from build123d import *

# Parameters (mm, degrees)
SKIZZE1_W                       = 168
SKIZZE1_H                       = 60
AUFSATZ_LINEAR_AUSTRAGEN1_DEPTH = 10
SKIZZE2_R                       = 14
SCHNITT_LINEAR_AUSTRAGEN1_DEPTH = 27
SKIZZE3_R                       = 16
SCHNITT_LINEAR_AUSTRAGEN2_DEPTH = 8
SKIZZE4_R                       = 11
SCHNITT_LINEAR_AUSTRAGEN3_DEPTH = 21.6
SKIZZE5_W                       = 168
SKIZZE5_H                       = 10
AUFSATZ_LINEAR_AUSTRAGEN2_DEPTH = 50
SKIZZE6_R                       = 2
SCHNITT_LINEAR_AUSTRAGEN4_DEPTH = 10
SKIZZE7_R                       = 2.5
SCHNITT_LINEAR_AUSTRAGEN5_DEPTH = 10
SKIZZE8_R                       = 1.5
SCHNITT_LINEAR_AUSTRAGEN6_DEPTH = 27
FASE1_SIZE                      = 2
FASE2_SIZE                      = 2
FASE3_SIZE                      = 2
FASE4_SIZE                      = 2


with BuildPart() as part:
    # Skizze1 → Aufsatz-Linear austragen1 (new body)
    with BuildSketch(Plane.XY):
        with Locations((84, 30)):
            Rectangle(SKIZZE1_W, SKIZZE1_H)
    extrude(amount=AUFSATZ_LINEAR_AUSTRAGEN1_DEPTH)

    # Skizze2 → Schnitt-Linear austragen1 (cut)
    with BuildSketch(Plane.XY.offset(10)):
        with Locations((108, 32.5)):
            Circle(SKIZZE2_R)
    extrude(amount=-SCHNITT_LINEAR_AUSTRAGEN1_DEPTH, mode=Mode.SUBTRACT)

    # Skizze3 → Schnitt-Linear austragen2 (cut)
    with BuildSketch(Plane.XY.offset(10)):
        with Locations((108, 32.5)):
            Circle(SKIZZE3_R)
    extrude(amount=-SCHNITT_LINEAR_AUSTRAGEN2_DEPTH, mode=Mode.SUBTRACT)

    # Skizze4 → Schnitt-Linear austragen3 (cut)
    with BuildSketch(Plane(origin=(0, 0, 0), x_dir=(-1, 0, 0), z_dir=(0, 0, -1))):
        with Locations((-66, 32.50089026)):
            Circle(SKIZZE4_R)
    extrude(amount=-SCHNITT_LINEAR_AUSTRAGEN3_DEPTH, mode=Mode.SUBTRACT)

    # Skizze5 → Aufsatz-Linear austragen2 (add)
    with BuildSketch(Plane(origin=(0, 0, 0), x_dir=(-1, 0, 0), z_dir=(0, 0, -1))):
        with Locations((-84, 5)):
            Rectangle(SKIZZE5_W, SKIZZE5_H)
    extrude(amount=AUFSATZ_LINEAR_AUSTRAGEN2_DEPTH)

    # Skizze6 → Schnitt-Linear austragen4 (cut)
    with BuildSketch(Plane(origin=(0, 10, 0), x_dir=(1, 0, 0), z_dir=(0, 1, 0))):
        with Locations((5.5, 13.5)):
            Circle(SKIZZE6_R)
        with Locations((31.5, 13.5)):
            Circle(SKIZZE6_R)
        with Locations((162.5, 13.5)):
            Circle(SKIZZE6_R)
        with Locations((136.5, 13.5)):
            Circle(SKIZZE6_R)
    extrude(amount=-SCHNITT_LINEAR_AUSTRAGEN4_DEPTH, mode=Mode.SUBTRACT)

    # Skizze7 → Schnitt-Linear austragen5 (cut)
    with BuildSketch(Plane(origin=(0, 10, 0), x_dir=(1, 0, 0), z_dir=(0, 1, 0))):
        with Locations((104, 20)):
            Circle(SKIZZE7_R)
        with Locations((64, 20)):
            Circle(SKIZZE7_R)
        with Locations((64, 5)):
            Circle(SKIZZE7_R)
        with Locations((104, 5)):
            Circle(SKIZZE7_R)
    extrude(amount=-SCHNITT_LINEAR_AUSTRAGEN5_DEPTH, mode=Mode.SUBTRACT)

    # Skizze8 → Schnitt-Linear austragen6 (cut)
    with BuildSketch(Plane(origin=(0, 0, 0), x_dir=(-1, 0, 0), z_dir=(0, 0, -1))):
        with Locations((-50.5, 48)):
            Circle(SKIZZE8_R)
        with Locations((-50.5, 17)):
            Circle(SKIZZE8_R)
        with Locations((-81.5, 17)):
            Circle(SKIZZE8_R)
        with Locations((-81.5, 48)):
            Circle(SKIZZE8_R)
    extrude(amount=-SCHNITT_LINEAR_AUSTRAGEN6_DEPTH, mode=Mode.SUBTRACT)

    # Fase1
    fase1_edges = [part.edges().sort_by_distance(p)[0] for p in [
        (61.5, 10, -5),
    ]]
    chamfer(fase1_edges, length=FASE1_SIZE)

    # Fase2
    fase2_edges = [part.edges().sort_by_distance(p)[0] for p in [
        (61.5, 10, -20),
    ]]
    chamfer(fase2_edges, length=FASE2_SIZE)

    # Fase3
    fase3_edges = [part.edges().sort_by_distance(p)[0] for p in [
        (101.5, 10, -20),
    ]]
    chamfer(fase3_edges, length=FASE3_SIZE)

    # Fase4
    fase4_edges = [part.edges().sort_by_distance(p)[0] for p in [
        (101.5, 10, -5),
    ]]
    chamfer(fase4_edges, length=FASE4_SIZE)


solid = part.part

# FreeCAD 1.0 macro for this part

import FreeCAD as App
import Part
import Sketcher
Q = App.Units.Quantity


def edges_at(feature, points):
    """Names of the edges that pass closest to the given points."""
    edges = feature.Shape.Edges
    near = lambda p: min(range(len(edges)), key=lambda i: edges[i].distToShape(Part.Vertex(*p))[0])
    return sorted({f"Edge{near(p) + 1}" for p in points})


def add_polygon(sketch, points):
    """Adds a closed chain of lines whose ends are joined by coincident constraints."""
    first, n = sketch.GeometryCount, len(points)
    for a, b in zip(points, points[1:] + points[:1]):
        sketch.addGeometry(Part.LineSegment(App.Vector(*a, 0), App.Vector(*b, 0)), False)
    for i in range(n):
        sketch.addConstraint(Sketcher.Constraint("Coincident", first + i, 2, first + (i + 1) % n, 1))

doc = App.newDocument("Part")
params = doc.addObject("Spreadsheet::Sheet", "Params")
for row, (alias, value) in enumerate([
    ("sketch1_width", "168 mm"),
    ("sketch1_height", "60 mm"),
    ("pad1_length", "10 mm"),
    ("sketch2_diameter", "28 mm"),
    ("pocket1_length", "27 mm"),
    ("sketch3_diameter", "32 mm"),
    ("pocket2_length", "8 mm"),
    ("sketch4_diameter", "22 mm"),
    ("pocket3_length", "21.6 mm"),
    ("sketch5_width", "168 mm"),
    ("sketch5_height", "10 mm"),
    ("pad2_length", "50 mm"),
    ("sketch6_diameter", "4 mm"),
    ("pocket4_length", "10 mm"),
    ("sketch7_diameter", "5 mm"),
    ("pocket5_length", "10 mm"),
    ("sketch8_diameter", "3 mm"),
    ("pocket6_length", "27 mm"),
    ("chamfer_size", "2 mm"),
    ("chamfer2_size", "2 mm"),
    ("chamfer3_size", "2 mm"),
    ("chamfer4_size", "2 mm"),
], start=1):
    params.set(f"A{row}", alias)
    params.set(f"B{row}", "=" + value)
    params.setAlias(f"B{row}", alias)

body = doc.addObject("PartDesign::Body", "Body")

# Sketch on XY plane
sketch1 = body.newObject("Sketcher::SketchObject", "Sketch")
sketch1.AttachmentSupport = (doc.getObject("XY_Plane"), [""])
sketch1.MapMode = "FlatFace"
add_polygon(sketch1, [(0, 60), (0, 0), (168, 0), (168, 60)])  # lines 0-3
sketch1.addConstraint([
    Sketcher.Constraint("Vertical", 0),
    Sketcher.Constraint("Horizontal", 1),
    Sketcher.Constraint("Vertical", 2),
    Sketcher.Constraint("Horizontal", 3),
    Sketcher.Constraint("Coincident", 0, 2, -1, 1),
    Sketcher.Constraint("DistanceX", 1, 1, 1, 2, Q("168 mm")),
    Sketcher.Constraint("DistanceY", 0, 2, 0, 1, Q("60 mm")),
])
sketch1.setExpression("Constraints[9]", "Params.sketch1_width")
sketch1.setExpression("Constraints[10]", "Params.sketch1_height")
pad1 = body.newObject("PartDesign::Pad", "Pad")
pad1.Profile = sketch1
pad1.setExpression("Length", "Params.pad1_length")

# Sketch on XY plane
sketch2 = body.newObject("Sketcher::SketchObject", "Sketch001")
sketch2.AttachmentSupport = (doc.getObject("XY_Plane"), [""])
sketch2.MapMode = "FlatFace"
sketch2.AttachmentOffset = App.Placement(App.Vector(0, 0, 10), App.Rotation())
sketch2.addGeometry(Part.Circle(App.Vector(108, 32.5, 0), App.Vector(0, 0, 1), 14), False)
sketch2.addConstraint([
    Sketcher.Constraint("Diameter", 0, Q("28 mm")),
    Sketcher.Constraint("DistanceX", -1, 1, 0, 3, Q("108 mm")),
    Sketcher.Constraint("DistanceY", -1, 1, 0, 3, Q("32.5 mm")),
])
sketch2.setExpression("Constraints[0]", "Params.sketch2_diameter")
pocket1 = body.newObject("PartDesign::Pocket", "Pocket")
pocket1.Profile = sketch2
pocket1.setExpression("Length", "Params.pocket1_length")

# Sketch on XY plane
sketch3 = body.newObject("Sketcher::SketchObject", "Sketch002")
sketch3.AttachmentSupport = (doc.getObject("XY_Plane"), [""])
sketch3.MapMode = "FlatFace"
sketch3.AttachmentOffset = App.Placement(App.Vector(0, 0, 10), App.Rotation())
sketch3.addGeometry(Part.Circle(App.Vector(108, 32.5, 0), App.Vector(0, 0, 1), 16), False)
sketch3.addConstraint([
    Sketcher.Constraint("Diameter", 0, Q("32 mm")),
    Sketcher.Constraint("DistanceX", -1, 1, 0, 3, Q("108 mm")),
    Sketcher.Constraint("DistanceY", -1, 1, 0, 3, Q("32.5 mm")),
])
sketch3.setExpression("Constraints[0]", "Params.sketch3_diameter")
pocket2 = body.newObject("PartDesign::Pocket", "Pocket001")
pocket2.Profile = sketch3
pocket2.setExpression("Length", "Params.pocket2_length")

# Sketch on XY plane
sketch4 = body.newObject("Sketcher::SketchObject", "Sketch003")
sketch4.AttachmentSupport = (doc.getObject("XY_Plane"), [""])
sketch4.MapMode = "FlatFace"
sketch4.addGeometry(Part.Circle(App.Vector(66, 32.50089, 0), App.Vector(0, 0, 1), 11), False)
sketch4.addConstraint([
    Sketcher.Constraint("Diameter", 0, Q("22 mm")),
    Sketcher.Constraint("DistanceX", -1, 1, 0, 3, Q("66 mm")),
    Sketcher.Constraint("DistanceY", -1, 1, 0, 3, Q("32.50089 mm")),
])
sketch4.setExpression("Constraints[0]", "Params.sketch4_diameter")
pocket3 = body.newObject("PartDesign::Pocket", "Pocket002")
pocket3.Profile = sketch4
pocket3.setExpression("Length", "Params.pocket3_length")
pocket3.Reversed = True

# Sketch on XY plane
sketch5 = body.newObject("Sketcher::SketchObject", "Sketch004")
sketch5.AttachmentSupport = (doc.getObject("XY_Plane"), [""])
sketch5.MapMode = "FlatFace"
add_polygon(sketch5, [(168, 10), (168, 0), (0, 0), (0, 10)])  # lines 0-3
sketch5.addConstraint([
    Sketcher.Constraint("Vertical", 0),
    Sketcher.Constraint("Horizontal", 1),
    Sketcher.Constraint("Vertical", 2),
    Sketcher.Constraint("Horizontal", 3),
    Sketcher.Constraint("Coincident", 1, 2, -1, 1),
    Sketcher.Constraint("DistanceX", 1, 2, 1, 1, Q("168 mm")),
    Sketcher.Constraint("DistanceY", 0, 2, 0, 1, Q("10 mm")),
])
sketch5.setExpression("Constraints[9]", "Params.sketch5_width")
sketch5.setExpression("Constraints[10]", "Params.sketch5_height")
pad2 = body.newObject("PartDesign::Pad", "Pad001")
pad2.Profile = sketch5
pad2.setExpression("Length", "Params.pad2_length")
pad2.Reversed = True

# Sketch on XZ plane
sketch6 = body.newObject("Sketcher::SketchObject", "Sketch005")
sketch6.AttachmentSupport = (doc.getObject("XZ_Plane"), [""])
sketch6.MapMode = "FlatFace"
sketch6.AttachmentOffset = App.Placement(App.Vector(0, 0, -10), App.Rotation())
sketch6.addGeometry([
    Part.Circle(App.Vector(5.5, -13.5, 0), App.Vector(0, 0, 1), 2),
    Part.Circle(App.Vector(31.5, -13.5, 0), App.Vector(0, 0, 1), 2),
    Part.Circle(App.Vector(162.5, -13.5, 0), App.Vector(0, 0, 1), 2),
    Part.Circle(App.Vector(136.5, -13.5, 0), App.Vector(0, 0, 1), 2),
], False)
sketch6.addConstraint([
    Sketcher.Constraint("Equal", 0, 1),
    Sketcher.Constraint("Equal", 1, 2),
    Sketcher.Constraint("Equal", 2, 3),
    Sketcher.Constraint("Horizontal", 0, 3, 1, 3),
    Sketcher.Constraint("Horizontal", 1, 3, 2, 3),
    Sketcher.Constraint("Horizontal", 2, 3, 3, 3),
    Sketcher.Constraint("Diameter", 0, Q("4 mm")),
    Sketcher.Constraint("DistanceX", 0, 3, 1, 3, Q("26 mm")),
    Sketcher.Constraint("DistanceX", 1, 3, 2, 3, Q("131 mm")),
    Sketcher.Constraint("DistanceX", 3, 3, 2, 3, Q("26 mm")),
    Sketcher.Constraint("DistanceX", -1, 1, 0, 3, Q("5.5 mm")),
    Sketcher.Constraint("DistanceY", 0, 3, -1, 1, Q("13.5 mm")),
])
sketch6.setExpression("Constraints[6]", "Params.sketch6_diameter")
pocket4 = body.newObject("PartDesign::Pocket", "Pocket003")
pocket4.Profile = sketch6
pocket4.setExpression("Length", "Params.pocket4_length")
pocket4.Reversed = True

# Sketch on XZ plane
sketch7 = body.newObject("Sketcher::SketchObject", "Sketch006")
sketch7.AttachmentSupport = (doc.getObject("XZ_Plane"), [""])
sketch7.MapMode = "FlatFace"
sketch7.AttachmentOffset = App.Placement(App.Vector(0, 0, -10), App.Rotation())
sketch7.addGeometry([
    Part.Circle(App.Vector(104, -20, 0), App.Vector(0, 0, 1), 2.5),
    Part.Circle(App.Vector(64, -20, 0), App.Vector(0, 0, 1), 2.5),
    Part.Circle(App.Vector(64, -5, 0), App.Vector(0, 0, 1), 2.5),
    Part.Circle(App.Vector(104, -5, 0), App.Vector(0, 0, 1), 2.5),
], False)
sketch7.addConstraint([
    Sketcher.Constraint("Equal", 0, 1),
    Sketcher.Constraint("Equal", 1, 2),
    Sketcher.Constraint("Equal", 2, 3),
    Sketcher.Constraint("Horizontal", 0, 3, 1, 3),
    Sketcher.Constraint("Horizontal", 2, 3, 3, 3),
    Sketcher.Constraint("Vertical", 1, 3, 2, 3),
    Sketcher.Constraint("Vertical", 0, 3, 3, 3),
    Sketcher.Constraint("Diameter", 0, Q("5 mm")),
    Sketcher.Constraint("DistanceX", -1, 1, 0, 3, Q("104 mm")),
    Sketcher.Constraint("DistanceY", 0, 3, -1, 1, Q("20 mm")),
    Sketcher.Constraint("DistanceX", -1, 1, 1, 3, Q("64 mm")),
    Sketcher.Constraint("DistanceY", 2, 3, -1, 1, Q("5 mm")),
])
sketch7.setExpression("Constraints[7]", "Params.sketch7_diameter")
pocket5 = body.newObject("PartDesign::Pocket", "Pocket004")
pocket5.Profile = sketch7
pocket5.setExpression("Length", "Params.pocket5_length")
pocket5.Reversed = True

# Sketch on XY plane
sketch8 = body.newObject("Sketcher::SketchObject", "Sketch007")
sketch8.AttachmentSupport = (doc.getObject("XY_Plane"), [""])
sketch8.MapMode = "FlatFace"
sketch8.addGeometry([
    Part.Circle(App.Vector(50.5, 48, 0), App.Vector(0, 0, 1), 1.5),
    Part.Circle(App.Vector(50.5, 17, 0), App.Vector(0, 0, 1), 1.5),
    Part.Circle(App.Vector(81.5, 17, 0), App.Vector(0, 0, 1), 1.5),
    Part.Circle(App.Vector(81.5, 48, 0), App.Vector(0, 0, 1), 1.5),
], False)
sketch8.addConstraint([
    Sketcher.Constraint("Equal", 0, 1),
    Sketcher.Constraint("Equal", 1, 2),
    Sketcher.Constraint("Equal", 2, 3),
    Sketcher.Constraint("Horizontal", 1, 3, 2, 3),
    Sketcher.Constraint("Horizontal", 0, 3, 3, 3),
    Sketcher.Constraint("Vertical", 0, 3, 1, 3),
    Sketcher.Constraint("Vertical", 2, 3, 3, 3),
    Sketcher.Constraint("Diameter", 0, Q("3 mm")),
    Sketcher.Constraint("DistanceY", -1, 1, 0, 3, Q("48 mm")),
    Sketcher.Constraint("DistanceY", -1, 1, 1, 3, Q("17 mm")),
    Sketcher.Constraint("DistanceX", 1, 3, 2, 3, Q("31 mm")),
    Sketcher.Constraint("DistanceX", -1, 1, 0, 3, Q("50.5 mm")),
])
sketch8.setExpression("Constraints[7]", "Params.sketch8_diameter")
pocket6 = body.newObject("PartDesign::Pocket", "Pocket005")
pocket6.Profile = sketch8
pocket6.setExpression("Length", "Params.pocket6_length")
pocket6.Reversed = True
doc.recompute()

chamfer = body.newObject("PartDesign::Chamfer", "Chamfer")
chamfer.Base = (pocket6, edges_at(pocket6, [(61.5, 10, -5)]))
chamfer.setExpression("Size", "Params.chamfer_size")
doc.recompute()

chamfer2 = body.newObject("PartDesign::Chamfer", "Chamfer001")
chamfer2.Base = (chamfer, edges_at(chamfer, [(61.5, 10, -20)]))
chamfer2.setExpression("Size", "Params.chamfer2_size")
doc.recompute()

chamfer3 = body.newObject("PartDesign::Chamfer", "Chamfer002")
chamfer3.Base = (chamfer2, edges_at(chamfer2, [(101.5, 10, -20)]))
chamfer3.setExpression("Size", "Params.chamfer3_size")
doc.recompute()

chamfer4 = body.newObject("PartDesign::Chamfer", "Chamfer003")
chamfer4.Base = (chamfer3, edges_at(chamfer3, [(101.5, 10, -5)]))
chamfer4.setExpression("Size", "Params.chamfer4_size")

doc.recompute()
